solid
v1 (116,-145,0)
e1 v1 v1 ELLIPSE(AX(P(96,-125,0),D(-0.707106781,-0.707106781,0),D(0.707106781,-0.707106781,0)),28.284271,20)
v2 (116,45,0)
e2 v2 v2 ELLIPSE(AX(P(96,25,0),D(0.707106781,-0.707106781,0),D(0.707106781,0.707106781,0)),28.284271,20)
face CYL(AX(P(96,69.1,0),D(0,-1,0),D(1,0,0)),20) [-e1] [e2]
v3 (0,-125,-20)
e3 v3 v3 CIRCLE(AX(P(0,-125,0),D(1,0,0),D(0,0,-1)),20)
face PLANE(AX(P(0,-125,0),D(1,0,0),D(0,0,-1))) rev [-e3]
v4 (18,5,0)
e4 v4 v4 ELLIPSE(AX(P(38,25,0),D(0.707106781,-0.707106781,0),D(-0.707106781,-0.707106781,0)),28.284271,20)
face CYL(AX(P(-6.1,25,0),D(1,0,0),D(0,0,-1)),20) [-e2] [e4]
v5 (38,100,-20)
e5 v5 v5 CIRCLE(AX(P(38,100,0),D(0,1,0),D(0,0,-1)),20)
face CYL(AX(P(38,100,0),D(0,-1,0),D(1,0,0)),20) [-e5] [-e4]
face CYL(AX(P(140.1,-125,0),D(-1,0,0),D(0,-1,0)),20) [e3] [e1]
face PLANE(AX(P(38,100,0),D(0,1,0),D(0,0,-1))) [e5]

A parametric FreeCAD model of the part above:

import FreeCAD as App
import Part
import Sketcher
from FreeCAD import Vector

doc = App.newDocument("Part")
params = doc.addObject("Spreadsheet::Sheet", "Params")
for row, (alias, value) in enumerate([
    ("sketch1_diameter", "40 mm"),
    ("sketch2_width", "58 mm"),
    ("sketch2_width2", "96 mm"),
    ("sketch2_height", "75 mm"),
    ("sketch2_height2", "150 mm"),
], start=1):
    params.set(f"A{row}", alias)
    params.set(f"B{row}", "=" + value)
    params.setAlias(f"B{row}", alias)

body = doc.addObject("PartDesign::Body", "Body")

sketch1 = doc.addObject("Sketcher::SketchObject", "Sketch")
body.addObject(sketch1)
sketch1.AttachmentSupport = (doc.YZ_Plane, [""])
sketch1.MapMode = "FlatFace"
sketch1.addGeometry(Part.Circle(Vector(-125, 0, 0), Vector(0, 0, 1), 20), False)
sketch1.addConstraint([
    Sketcher.Constraint("PointOnObject", 0, 3, -1),
    Sketcher.Constraint("Diameter", 0, 40.0),
    Sketcher.Constraint("DistanceX", 0, 3, -1, 1, 125.0),
])
sketch1.setExpression("Constraints[1]", "Params.sketch1_diameter")

sketch2 = doc.addObject("Sketcher::SketchObject", "Sketch001")
body.addObject(sketch2)
sketch2.AttachmentSupport = (doc.XY_Plane, [""])
sketch2.MapMode = "FlatFace"
sketch2.addGeometry([
    Part.LineSegment(Vector(38, 100, 0), Vector(38, 25, 0)),
    Part.LineSegment(Vector(38, 25, 0), Vector(96, 25, 0)),
    Part.LineSegment(Vector(96, 25, 0), Vector(96, -125, 0)),
    Part.LineSegment(Vector(96, -125, 0), Vector(0, -125, 0)),
], False)
sketch2.addConstraint([
    Sketcher.Constraint("Coincident", 0, 2, 1, 1),
    Sketcher.Constraint("Coincident", 1, 2, 2, 1),
    Sketcher.Constraint("Coincident", 2, 2, 3, 1),
    Sketcher.Constraint("Vertical", 0),
    Sketcher.Constraint("Horizontal", 1),
    Sketcher.Constraint("Vertical", 2),
    Sketcher.Constraint("Horizontal", 3),
    Sketcher.Constraint("PointOnObject", 3, 2, -2),
    Sketcher.Constraint("DistanceX", 1, 1, 1, 2, 58.0),
    Sketcher.Constraint("DistanceX", 3, 2, 3, 1, 96.0),
    Sketcher.Constraint("DistanceY", 0, 2, 0, 1, 75.0),
    Sketcher.Constraint("DistanceY", 2, 2, 2, 1, 150.0),
    Sketcher.Constraint("DistanceY", -1, 1, 0, 1, 100.0),
])
sketch2.setExpression("Constraints[8]", "Params.sketch2_width")
sketch2.setExpression("Constraints[9]", "Params.sketch2_width2")
sketch2.setExpression("Constraints[10]", "Params.sketch2_height")
sketch2.setExpression("Constraints[11]", "Params.sketch2_height2")
doc.recompute()

additivepipe = doc.addObject("PartDesign::AdditivePipe", "AdditivePipe")
body.addObject(additivepipe)
additivepipe.Profile = sketch1
additivepipe.Spine = (sketch2, ["Edge1", "Edge2", "Edge3", "Edge4"])
additivepipe.Transition = "Right corner"

doc.recompute()
